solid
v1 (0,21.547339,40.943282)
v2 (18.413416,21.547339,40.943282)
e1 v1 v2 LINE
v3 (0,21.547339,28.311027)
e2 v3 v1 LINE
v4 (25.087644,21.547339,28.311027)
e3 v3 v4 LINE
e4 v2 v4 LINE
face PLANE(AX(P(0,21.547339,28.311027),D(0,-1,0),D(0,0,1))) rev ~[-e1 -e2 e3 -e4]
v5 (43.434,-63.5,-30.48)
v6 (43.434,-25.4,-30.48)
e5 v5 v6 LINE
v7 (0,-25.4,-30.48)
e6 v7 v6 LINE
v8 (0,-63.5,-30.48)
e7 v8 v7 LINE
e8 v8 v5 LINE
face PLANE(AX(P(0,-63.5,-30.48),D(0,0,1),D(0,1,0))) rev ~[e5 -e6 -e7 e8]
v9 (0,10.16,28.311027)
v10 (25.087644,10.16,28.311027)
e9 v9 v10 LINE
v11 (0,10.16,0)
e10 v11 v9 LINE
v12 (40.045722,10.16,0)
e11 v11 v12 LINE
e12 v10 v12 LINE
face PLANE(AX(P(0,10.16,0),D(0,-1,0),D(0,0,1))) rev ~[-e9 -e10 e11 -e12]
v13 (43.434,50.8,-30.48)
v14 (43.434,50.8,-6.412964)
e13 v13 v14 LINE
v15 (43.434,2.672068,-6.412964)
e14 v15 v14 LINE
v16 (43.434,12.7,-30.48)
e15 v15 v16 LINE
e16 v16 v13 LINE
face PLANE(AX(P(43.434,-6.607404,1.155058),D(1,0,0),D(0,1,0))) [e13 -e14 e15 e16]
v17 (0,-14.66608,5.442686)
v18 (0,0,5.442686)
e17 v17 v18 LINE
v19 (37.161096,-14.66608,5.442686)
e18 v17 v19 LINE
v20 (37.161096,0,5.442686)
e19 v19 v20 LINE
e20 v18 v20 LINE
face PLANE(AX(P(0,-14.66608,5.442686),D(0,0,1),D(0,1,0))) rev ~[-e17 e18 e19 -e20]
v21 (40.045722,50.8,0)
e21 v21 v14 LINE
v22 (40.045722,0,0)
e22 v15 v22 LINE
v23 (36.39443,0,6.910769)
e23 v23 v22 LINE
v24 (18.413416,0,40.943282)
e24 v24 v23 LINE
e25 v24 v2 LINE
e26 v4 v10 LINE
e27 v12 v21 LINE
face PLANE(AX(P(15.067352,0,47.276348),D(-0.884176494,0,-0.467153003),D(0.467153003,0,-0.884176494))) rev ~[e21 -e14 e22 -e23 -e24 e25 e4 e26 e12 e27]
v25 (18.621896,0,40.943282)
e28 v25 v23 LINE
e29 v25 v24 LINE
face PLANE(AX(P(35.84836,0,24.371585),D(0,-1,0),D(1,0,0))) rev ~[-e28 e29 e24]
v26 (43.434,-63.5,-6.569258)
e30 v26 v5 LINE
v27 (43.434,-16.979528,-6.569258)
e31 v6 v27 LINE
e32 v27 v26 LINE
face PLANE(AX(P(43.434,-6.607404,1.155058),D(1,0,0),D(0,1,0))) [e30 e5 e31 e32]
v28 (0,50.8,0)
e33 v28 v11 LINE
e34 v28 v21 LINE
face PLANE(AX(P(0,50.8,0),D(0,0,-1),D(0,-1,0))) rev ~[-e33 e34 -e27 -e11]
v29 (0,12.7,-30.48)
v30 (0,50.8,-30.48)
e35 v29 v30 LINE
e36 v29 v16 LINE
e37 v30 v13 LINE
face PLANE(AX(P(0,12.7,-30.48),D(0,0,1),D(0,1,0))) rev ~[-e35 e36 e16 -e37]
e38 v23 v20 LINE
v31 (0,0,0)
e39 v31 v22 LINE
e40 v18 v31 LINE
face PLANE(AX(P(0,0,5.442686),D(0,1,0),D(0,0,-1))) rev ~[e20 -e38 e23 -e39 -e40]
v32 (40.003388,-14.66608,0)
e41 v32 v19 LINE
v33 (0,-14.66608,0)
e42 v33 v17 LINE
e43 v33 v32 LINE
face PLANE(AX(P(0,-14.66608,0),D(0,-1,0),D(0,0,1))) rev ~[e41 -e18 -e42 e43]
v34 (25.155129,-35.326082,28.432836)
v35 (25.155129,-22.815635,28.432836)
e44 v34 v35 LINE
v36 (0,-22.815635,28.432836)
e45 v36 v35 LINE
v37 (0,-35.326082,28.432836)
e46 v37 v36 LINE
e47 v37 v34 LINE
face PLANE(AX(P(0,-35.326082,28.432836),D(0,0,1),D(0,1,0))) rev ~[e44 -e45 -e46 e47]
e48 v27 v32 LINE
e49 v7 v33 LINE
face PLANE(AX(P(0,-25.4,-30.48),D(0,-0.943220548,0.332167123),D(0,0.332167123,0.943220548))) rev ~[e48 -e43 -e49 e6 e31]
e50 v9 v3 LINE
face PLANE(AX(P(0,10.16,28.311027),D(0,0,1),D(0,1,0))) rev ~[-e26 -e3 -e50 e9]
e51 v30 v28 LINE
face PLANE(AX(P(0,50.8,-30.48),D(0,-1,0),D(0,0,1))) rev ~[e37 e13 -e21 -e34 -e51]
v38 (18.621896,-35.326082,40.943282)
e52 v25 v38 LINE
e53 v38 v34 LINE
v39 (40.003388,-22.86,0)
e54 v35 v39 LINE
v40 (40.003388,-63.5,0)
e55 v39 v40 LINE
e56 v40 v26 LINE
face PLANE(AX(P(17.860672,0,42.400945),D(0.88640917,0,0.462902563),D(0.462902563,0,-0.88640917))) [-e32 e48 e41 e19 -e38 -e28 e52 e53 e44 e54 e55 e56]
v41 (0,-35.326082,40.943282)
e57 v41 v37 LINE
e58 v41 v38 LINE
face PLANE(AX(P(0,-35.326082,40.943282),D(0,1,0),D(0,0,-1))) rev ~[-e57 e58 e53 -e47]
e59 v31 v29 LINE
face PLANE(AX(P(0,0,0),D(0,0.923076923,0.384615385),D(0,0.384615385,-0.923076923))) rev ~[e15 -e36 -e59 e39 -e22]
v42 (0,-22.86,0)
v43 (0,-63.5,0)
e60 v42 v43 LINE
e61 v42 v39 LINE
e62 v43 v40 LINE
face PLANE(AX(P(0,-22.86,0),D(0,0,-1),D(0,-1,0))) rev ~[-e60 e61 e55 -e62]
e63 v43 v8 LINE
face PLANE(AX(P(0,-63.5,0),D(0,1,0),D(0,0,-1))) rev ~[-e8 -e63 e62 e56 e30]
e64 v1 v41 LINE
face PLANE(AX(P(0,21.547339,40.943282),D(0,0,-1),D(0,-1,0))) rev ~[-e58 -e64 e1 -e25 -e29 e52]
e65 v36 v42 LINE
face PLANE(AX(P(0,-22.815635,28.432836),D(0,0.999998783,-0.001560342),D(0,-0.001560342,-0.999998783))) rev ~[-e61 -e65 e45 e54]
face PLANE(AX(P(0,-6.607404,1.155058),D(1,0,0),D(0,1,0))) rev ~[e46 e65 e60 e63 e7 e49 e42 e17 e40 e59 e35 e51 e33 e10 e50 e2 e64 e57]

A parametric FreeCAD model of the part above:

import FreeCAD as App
import Part
import Sketcher
Q = App.Units.Quantity

doc = App.newDocument("Part")
params = doc.addObject("Spreadsheet::Sheet", "Params")
for row, (alias, value) in enumerate([
    ("sketch1_width", "1.6 in"),
    ("sketch1_width2", "1.5 in"),
    ("sketch1_height", "1.2 in"),
    ("pad1_length", "1.71 in"),
    ("pocket1_length", "2.26 in"),
    ("pocket2_length", "2.82 in"),
], start=1):
    params.set(f"A{row}", alias)
    params.set(f"B{row}", "=" + value)
    params.setAlias(f"B{row}", alias)

body = doc.addObject("PartDesign::Body", "Body")

sketch1 = body.newObject("Sketcher::SketchObject", "Sketch")
sketch1.AttachmentSupport = (doc.getObject("YZ_Plane"), [""])
sketch1.MapMode = "FlatFace"
sketch1.addGeometry([
    Part.LineSegment(App.Vector(21.547339, 40.943282, 0), App.Vector(-35.326082, 40.943282, 0)),
    Part.LineSegment(App.Vector(-35.326082, 40.943282, 0), App.Vector(-35.326082, 28.432836, 0)),
    Part.LineSegment(App.Vector(-35.326082, 28.432836, 0), App.Vector(-22.815635, 28.432836, 0)),
    Part.LineSegment(App.Vector(-22.815635, 28.432836, 0), App.Vector(-22.86, 0, 0)),
    Part.LineSegment(App.Vector(-22.86, 0, 0), App.Vector(-63.5, 0, 0)),
    Part.LineSegment(App.Vector(-63.5, 0, 0), App.Vector(-63.5, -30.48, 0)),
    Part.LineSegment(App.Vector(-63.5, -30.48, 0), App.Vector(-25.4, -30.48, 0)),
    Part.LineSegment(App.Vector(-25.4, -30.48, 0), App.Vector(-14.66608, 0, 0)),
    Part.LineSegment(App.Vector(-14.66608, 0, 0), App.Vector(-14.66608, 5.442686, 0)),
    Part.LineSegment(App.Vector(-14.66608, 5.442686, 0), App.Vector(0, 5.442686, 0)),
    Part.LineSegment(App.Vector(0, 5.442686, 0), App.Vector(0, 0, 0)),
    Part.LineSegment(App.Vector(0, 0, 0), App.Vector(12.7, -30.48, 0)),
    Part.LineSegment(App.Vector(12.7, -30.48, 0), App.Vector(50.8, -30.48, 0)),
    Part.LineSegment(App.Vector(50.8, -30.48, 0), App.Vector(50.8, 0, 0)),
    Part.LineSegment(App.Vector(50.8, 0, 0), App.Vector(10.16, 0, 0)),
    Part.LineSegment(App.Vector(10.16, 0, 0), App.Vector(10.16, 28.311027, 0)),
    Part.LineSegment(App.Vector(10.16, 28.311027, 0), App.Vector(21.547339, 28.311027, 0)),
    Part.LineSegment(App.Vector(21.547339, 28.311027, 0), App.Vector(21.547339, 40.943282, 0)),
], False)
sketch1.addConstraint([
    Sketcher.Constraint("Coincident", 0, 2, 1, 1),
    Sketcher.Constraint("Coincident", 1, 2, 2, 1),
    Sketcher.Constraint("Coincident", 2, 2, 3, 1),
    Sketcher.Constraint("Coincident", 3, 2, 4, 1),
    Sketcher.Constraint("Coincident", 4, 2, 5, 1),
    Sketcher.Constraint("Coincident", 5, 2, 6, 1),
    Sketcher.Constraint("Coincident", 6, 2, 7, 1),
    Sketcher.Constraint("Coincident", 7, 2, 8, 1),
    Sketcher.Constraint("Coincident", 8, 2, 9, 1),
    Sketcher.Constraint("Coincident", 9, 2, 10, 1),
    Sketcher.Constraint("Coincident", 10, 2, 11, 1),
    Sketcher.Constraint("Coincident", 11, 2, 12, 1),
    Sketcher.Constraint("Coincident", 12, 2, 13, 1),
    Sketcher.Constraint("Coincident", 13, 2, 14, 1),
    Sketcher.Constraint("Coincident", 14, 2, 15, 1),
    Sketcher.Constraint("Coincident", 15, 2, 16, 1),
    Sketcher.Constraint("Coincident", 16, 2, 17, 1),
    Sketcher.Constraint("Coincident", 17, 2, 0, 1),
    Sketcher.Constraint("Horizontal", 0),
    Sketcher.Constraint("Vertical", 1),
    Sketcher.Constraint("Horizontal", 2),
    Sketcher.Constraint("Horizontal", 4),
    Sketcher.Constraint("Vertical", 5),
    Sketcher.Constraint("Horizontal", 6),
    Sketcher.Constraint("Vertical", 8),
    Sketcher.Constraint("Horizontal", 9),
    Sketcher.Constraint("Vertical", 10),
    Sketcher.Constraint("Horizontal", 12),
    Sketcher.Constraint("Vertical", 13),
    Sketcher.Constraint("Horizontal", 14),
    Sketcher.Constraint("Vertical", 15),
    Sketcher.Constraint("Horizontal", 16),
    Sketcher.Constraint("Vertical", 17),
    Sketcher.Constraint("Coincident", 10, 2, -1, 1),
    Sketcher.Constraint("PointOnObject", 3, 2, -1),
    Sketcher.Constraint("PointOnObject", 7, 2, -1),
    Sketcher.Constraint("PointOnObject", 13, 2, -1),
    Sketcher.Constraint("Horizontal", 6, 2, 11, 2),
    Sketcher.Constraint("Equal", 6, 12),
    Sketcher.Constraint("Equal", 4, 14),
    Sketcher.Constraint("Equal", 2, 1),
    Sketcher.Constraint("DistanceX", 4, 2, 4, 1, Q("1.6 in")),
    Sketcher.Constraint("DistanceX", 6, 1, 6, 2, Q("1.5 in")),
    Sketcher.Constraint("DistanceY", 5, 2, 5, 1, Q("1.2 in")),
    Sketcher.Constraint("DistanceX", 6, 2, -1, 1, Q("1 in")),
    Sketcher.Constraint("DistanceX", -1, 1, 12, 2, Q("2 in")),
    Sketcher.Constraint("DistanceX", 0, 2, 0, 1, Q("56.873421 mm")),
    Sketcher.Constraint("DistanceX", 9, 1, 9, 2, Q("14.66608 mm")),
    Sketcher.Constraint("DistanceX", 16, 1, 16, 2, Q("11.387339 mm")),
    Sketcher.Constraint("Distance", 3, Q("28.432871 mm")),
    Sketcher.Constraint("DistanceX", 2, 1, 2, 2, Q("12.510447 mm")),
    Sketcher.Constraint("DistanceY", 8, 1, 8, 2, Q("5.442686 mm")),
    Sketcher.Constraint("DistanceY", 15, 1, 15, 2, Q("28.311027 mm")),
])
sketch1.setExpression("Constraints[41]", "Params.sketch1_width")
sketch1.setExpression("Constraints[42]", "Params.sketch1_width2")
sketch1.setExpression("Constraints[43]", "Params.sketch1_height")
pad1 = body.newObject("PartDesign::Pad", "Pad")
pad1.Profile = sketch1
pad1.setExpression("Length", "Params.pad1_length")

sketch2 = body.newObject("Sketcher::SketchObject", "Sketch001")
sketch2.AttachmentSupport = (doc.getObject("XZ_Plane"), [""])
sketch2.MapMode = "FlatFace"
sketch2.addGeometry([
    Part.LineSegment(App.Vector(15.067352, 47.276348, 0), App.Vector(45.27159, -9.890955, 0)),
    Part.LineSegment(App.Vector(45.27159, -9.890955, 0), App.Vector(45.27159, 47.276348, 0)),
    Part.LineSegment(App.Vector(45.27159, 47.276348, 0), App.Vector(15.067352, 47.276348, 0)),
], False)
sketch2.addConstraint([
    Sketcher.Constraint("Coincident", 0, 2, 1, 1),
    Sketcher.Constraint("Coincident", 1, 2, 2, 1),
    Sketcher.Constraint("Coincident", 2, 2, 0, 1),
    Sketcher.Constraint("Vertical", 1),
    Sketcher.Constraint("Horizontal", 2),
    Sketcher.Constraint("DistanceX", 2, 2, 2, 1, Q("30.204238 mm")),
    Sketcher.Constraint("DistanceY", 1, 1, 1, 2, Q("57.167303 mm")),
    Sketcher.Constraint("DistanceX", -1, 1, 0, 2, Q("45.27159 mm")),
    Sketcher.Constraint("DistanceY", 0, 2, -1, 1, Q("9.890955 mm")),
])
pocket1 = body.newObject("PartDesign::Pocket", "Pocket")
pocket1.Profile = sketch2
pocket1.setExpression("Length", "Params.pocket1_length")

sketch3 = body.newObject("Sketcher::SketchObject", "Sketch002")
sketch3.AttachmentSupport = (doc.getObject("XZ_Plane"), [""])
sketch3.MapMode = "FlatFace"
sketch3.addGeometry([
    Part.LineSegment(App.Vector(17.860672, 42.400945, 0), App.Vector(45.15991, -9.874192, 0)),
    Part.LineSegment(App.Vector(45.15991, -9.874192, 0), App.Vector(45.15991, 42.400945, 0)),
    Part.LineSegment(App.Vector(45.15991, 42.400945, 0), App.Vector(17.860672, 42.400945, 0)),
], False)
sketch3.addConstraint([
    Sketcher.Constraint("Coincident", 0, 2, 1, 1),
    Sketcher.Constraint("Coincident", 1, 2, 2, 1),
    Sketcher.Constraint("Coincident", 2, 2, 0, 1),
    Sketcher.Constraint("Vertical", 1),
    Sketcher.Constraint("Horizontal", 2),
    Sketcher.Constraint("DistanceX", 2, 2, 2, 1, Q("27.299238 mm")),
    Sketcher.Constraint("Distance", 0, Q("58.974048 mm")),
    Sketcher.Constraint("DistanceX", -1, 1, 0, 2, Q("45.15991 mm")),
    Sketcher.Constraint("DistanceY", 0, 2, -1, 1, Q("9.874192 mm")),
])
pocket2 = body.newObject("PartDesign::Pocket", "Pocket001")
pocket2.Profile = sketch3
pocket2.setExpression("Length", "Params.pocket2_length")
pocket2.Reversed = True

doc.recompute()
